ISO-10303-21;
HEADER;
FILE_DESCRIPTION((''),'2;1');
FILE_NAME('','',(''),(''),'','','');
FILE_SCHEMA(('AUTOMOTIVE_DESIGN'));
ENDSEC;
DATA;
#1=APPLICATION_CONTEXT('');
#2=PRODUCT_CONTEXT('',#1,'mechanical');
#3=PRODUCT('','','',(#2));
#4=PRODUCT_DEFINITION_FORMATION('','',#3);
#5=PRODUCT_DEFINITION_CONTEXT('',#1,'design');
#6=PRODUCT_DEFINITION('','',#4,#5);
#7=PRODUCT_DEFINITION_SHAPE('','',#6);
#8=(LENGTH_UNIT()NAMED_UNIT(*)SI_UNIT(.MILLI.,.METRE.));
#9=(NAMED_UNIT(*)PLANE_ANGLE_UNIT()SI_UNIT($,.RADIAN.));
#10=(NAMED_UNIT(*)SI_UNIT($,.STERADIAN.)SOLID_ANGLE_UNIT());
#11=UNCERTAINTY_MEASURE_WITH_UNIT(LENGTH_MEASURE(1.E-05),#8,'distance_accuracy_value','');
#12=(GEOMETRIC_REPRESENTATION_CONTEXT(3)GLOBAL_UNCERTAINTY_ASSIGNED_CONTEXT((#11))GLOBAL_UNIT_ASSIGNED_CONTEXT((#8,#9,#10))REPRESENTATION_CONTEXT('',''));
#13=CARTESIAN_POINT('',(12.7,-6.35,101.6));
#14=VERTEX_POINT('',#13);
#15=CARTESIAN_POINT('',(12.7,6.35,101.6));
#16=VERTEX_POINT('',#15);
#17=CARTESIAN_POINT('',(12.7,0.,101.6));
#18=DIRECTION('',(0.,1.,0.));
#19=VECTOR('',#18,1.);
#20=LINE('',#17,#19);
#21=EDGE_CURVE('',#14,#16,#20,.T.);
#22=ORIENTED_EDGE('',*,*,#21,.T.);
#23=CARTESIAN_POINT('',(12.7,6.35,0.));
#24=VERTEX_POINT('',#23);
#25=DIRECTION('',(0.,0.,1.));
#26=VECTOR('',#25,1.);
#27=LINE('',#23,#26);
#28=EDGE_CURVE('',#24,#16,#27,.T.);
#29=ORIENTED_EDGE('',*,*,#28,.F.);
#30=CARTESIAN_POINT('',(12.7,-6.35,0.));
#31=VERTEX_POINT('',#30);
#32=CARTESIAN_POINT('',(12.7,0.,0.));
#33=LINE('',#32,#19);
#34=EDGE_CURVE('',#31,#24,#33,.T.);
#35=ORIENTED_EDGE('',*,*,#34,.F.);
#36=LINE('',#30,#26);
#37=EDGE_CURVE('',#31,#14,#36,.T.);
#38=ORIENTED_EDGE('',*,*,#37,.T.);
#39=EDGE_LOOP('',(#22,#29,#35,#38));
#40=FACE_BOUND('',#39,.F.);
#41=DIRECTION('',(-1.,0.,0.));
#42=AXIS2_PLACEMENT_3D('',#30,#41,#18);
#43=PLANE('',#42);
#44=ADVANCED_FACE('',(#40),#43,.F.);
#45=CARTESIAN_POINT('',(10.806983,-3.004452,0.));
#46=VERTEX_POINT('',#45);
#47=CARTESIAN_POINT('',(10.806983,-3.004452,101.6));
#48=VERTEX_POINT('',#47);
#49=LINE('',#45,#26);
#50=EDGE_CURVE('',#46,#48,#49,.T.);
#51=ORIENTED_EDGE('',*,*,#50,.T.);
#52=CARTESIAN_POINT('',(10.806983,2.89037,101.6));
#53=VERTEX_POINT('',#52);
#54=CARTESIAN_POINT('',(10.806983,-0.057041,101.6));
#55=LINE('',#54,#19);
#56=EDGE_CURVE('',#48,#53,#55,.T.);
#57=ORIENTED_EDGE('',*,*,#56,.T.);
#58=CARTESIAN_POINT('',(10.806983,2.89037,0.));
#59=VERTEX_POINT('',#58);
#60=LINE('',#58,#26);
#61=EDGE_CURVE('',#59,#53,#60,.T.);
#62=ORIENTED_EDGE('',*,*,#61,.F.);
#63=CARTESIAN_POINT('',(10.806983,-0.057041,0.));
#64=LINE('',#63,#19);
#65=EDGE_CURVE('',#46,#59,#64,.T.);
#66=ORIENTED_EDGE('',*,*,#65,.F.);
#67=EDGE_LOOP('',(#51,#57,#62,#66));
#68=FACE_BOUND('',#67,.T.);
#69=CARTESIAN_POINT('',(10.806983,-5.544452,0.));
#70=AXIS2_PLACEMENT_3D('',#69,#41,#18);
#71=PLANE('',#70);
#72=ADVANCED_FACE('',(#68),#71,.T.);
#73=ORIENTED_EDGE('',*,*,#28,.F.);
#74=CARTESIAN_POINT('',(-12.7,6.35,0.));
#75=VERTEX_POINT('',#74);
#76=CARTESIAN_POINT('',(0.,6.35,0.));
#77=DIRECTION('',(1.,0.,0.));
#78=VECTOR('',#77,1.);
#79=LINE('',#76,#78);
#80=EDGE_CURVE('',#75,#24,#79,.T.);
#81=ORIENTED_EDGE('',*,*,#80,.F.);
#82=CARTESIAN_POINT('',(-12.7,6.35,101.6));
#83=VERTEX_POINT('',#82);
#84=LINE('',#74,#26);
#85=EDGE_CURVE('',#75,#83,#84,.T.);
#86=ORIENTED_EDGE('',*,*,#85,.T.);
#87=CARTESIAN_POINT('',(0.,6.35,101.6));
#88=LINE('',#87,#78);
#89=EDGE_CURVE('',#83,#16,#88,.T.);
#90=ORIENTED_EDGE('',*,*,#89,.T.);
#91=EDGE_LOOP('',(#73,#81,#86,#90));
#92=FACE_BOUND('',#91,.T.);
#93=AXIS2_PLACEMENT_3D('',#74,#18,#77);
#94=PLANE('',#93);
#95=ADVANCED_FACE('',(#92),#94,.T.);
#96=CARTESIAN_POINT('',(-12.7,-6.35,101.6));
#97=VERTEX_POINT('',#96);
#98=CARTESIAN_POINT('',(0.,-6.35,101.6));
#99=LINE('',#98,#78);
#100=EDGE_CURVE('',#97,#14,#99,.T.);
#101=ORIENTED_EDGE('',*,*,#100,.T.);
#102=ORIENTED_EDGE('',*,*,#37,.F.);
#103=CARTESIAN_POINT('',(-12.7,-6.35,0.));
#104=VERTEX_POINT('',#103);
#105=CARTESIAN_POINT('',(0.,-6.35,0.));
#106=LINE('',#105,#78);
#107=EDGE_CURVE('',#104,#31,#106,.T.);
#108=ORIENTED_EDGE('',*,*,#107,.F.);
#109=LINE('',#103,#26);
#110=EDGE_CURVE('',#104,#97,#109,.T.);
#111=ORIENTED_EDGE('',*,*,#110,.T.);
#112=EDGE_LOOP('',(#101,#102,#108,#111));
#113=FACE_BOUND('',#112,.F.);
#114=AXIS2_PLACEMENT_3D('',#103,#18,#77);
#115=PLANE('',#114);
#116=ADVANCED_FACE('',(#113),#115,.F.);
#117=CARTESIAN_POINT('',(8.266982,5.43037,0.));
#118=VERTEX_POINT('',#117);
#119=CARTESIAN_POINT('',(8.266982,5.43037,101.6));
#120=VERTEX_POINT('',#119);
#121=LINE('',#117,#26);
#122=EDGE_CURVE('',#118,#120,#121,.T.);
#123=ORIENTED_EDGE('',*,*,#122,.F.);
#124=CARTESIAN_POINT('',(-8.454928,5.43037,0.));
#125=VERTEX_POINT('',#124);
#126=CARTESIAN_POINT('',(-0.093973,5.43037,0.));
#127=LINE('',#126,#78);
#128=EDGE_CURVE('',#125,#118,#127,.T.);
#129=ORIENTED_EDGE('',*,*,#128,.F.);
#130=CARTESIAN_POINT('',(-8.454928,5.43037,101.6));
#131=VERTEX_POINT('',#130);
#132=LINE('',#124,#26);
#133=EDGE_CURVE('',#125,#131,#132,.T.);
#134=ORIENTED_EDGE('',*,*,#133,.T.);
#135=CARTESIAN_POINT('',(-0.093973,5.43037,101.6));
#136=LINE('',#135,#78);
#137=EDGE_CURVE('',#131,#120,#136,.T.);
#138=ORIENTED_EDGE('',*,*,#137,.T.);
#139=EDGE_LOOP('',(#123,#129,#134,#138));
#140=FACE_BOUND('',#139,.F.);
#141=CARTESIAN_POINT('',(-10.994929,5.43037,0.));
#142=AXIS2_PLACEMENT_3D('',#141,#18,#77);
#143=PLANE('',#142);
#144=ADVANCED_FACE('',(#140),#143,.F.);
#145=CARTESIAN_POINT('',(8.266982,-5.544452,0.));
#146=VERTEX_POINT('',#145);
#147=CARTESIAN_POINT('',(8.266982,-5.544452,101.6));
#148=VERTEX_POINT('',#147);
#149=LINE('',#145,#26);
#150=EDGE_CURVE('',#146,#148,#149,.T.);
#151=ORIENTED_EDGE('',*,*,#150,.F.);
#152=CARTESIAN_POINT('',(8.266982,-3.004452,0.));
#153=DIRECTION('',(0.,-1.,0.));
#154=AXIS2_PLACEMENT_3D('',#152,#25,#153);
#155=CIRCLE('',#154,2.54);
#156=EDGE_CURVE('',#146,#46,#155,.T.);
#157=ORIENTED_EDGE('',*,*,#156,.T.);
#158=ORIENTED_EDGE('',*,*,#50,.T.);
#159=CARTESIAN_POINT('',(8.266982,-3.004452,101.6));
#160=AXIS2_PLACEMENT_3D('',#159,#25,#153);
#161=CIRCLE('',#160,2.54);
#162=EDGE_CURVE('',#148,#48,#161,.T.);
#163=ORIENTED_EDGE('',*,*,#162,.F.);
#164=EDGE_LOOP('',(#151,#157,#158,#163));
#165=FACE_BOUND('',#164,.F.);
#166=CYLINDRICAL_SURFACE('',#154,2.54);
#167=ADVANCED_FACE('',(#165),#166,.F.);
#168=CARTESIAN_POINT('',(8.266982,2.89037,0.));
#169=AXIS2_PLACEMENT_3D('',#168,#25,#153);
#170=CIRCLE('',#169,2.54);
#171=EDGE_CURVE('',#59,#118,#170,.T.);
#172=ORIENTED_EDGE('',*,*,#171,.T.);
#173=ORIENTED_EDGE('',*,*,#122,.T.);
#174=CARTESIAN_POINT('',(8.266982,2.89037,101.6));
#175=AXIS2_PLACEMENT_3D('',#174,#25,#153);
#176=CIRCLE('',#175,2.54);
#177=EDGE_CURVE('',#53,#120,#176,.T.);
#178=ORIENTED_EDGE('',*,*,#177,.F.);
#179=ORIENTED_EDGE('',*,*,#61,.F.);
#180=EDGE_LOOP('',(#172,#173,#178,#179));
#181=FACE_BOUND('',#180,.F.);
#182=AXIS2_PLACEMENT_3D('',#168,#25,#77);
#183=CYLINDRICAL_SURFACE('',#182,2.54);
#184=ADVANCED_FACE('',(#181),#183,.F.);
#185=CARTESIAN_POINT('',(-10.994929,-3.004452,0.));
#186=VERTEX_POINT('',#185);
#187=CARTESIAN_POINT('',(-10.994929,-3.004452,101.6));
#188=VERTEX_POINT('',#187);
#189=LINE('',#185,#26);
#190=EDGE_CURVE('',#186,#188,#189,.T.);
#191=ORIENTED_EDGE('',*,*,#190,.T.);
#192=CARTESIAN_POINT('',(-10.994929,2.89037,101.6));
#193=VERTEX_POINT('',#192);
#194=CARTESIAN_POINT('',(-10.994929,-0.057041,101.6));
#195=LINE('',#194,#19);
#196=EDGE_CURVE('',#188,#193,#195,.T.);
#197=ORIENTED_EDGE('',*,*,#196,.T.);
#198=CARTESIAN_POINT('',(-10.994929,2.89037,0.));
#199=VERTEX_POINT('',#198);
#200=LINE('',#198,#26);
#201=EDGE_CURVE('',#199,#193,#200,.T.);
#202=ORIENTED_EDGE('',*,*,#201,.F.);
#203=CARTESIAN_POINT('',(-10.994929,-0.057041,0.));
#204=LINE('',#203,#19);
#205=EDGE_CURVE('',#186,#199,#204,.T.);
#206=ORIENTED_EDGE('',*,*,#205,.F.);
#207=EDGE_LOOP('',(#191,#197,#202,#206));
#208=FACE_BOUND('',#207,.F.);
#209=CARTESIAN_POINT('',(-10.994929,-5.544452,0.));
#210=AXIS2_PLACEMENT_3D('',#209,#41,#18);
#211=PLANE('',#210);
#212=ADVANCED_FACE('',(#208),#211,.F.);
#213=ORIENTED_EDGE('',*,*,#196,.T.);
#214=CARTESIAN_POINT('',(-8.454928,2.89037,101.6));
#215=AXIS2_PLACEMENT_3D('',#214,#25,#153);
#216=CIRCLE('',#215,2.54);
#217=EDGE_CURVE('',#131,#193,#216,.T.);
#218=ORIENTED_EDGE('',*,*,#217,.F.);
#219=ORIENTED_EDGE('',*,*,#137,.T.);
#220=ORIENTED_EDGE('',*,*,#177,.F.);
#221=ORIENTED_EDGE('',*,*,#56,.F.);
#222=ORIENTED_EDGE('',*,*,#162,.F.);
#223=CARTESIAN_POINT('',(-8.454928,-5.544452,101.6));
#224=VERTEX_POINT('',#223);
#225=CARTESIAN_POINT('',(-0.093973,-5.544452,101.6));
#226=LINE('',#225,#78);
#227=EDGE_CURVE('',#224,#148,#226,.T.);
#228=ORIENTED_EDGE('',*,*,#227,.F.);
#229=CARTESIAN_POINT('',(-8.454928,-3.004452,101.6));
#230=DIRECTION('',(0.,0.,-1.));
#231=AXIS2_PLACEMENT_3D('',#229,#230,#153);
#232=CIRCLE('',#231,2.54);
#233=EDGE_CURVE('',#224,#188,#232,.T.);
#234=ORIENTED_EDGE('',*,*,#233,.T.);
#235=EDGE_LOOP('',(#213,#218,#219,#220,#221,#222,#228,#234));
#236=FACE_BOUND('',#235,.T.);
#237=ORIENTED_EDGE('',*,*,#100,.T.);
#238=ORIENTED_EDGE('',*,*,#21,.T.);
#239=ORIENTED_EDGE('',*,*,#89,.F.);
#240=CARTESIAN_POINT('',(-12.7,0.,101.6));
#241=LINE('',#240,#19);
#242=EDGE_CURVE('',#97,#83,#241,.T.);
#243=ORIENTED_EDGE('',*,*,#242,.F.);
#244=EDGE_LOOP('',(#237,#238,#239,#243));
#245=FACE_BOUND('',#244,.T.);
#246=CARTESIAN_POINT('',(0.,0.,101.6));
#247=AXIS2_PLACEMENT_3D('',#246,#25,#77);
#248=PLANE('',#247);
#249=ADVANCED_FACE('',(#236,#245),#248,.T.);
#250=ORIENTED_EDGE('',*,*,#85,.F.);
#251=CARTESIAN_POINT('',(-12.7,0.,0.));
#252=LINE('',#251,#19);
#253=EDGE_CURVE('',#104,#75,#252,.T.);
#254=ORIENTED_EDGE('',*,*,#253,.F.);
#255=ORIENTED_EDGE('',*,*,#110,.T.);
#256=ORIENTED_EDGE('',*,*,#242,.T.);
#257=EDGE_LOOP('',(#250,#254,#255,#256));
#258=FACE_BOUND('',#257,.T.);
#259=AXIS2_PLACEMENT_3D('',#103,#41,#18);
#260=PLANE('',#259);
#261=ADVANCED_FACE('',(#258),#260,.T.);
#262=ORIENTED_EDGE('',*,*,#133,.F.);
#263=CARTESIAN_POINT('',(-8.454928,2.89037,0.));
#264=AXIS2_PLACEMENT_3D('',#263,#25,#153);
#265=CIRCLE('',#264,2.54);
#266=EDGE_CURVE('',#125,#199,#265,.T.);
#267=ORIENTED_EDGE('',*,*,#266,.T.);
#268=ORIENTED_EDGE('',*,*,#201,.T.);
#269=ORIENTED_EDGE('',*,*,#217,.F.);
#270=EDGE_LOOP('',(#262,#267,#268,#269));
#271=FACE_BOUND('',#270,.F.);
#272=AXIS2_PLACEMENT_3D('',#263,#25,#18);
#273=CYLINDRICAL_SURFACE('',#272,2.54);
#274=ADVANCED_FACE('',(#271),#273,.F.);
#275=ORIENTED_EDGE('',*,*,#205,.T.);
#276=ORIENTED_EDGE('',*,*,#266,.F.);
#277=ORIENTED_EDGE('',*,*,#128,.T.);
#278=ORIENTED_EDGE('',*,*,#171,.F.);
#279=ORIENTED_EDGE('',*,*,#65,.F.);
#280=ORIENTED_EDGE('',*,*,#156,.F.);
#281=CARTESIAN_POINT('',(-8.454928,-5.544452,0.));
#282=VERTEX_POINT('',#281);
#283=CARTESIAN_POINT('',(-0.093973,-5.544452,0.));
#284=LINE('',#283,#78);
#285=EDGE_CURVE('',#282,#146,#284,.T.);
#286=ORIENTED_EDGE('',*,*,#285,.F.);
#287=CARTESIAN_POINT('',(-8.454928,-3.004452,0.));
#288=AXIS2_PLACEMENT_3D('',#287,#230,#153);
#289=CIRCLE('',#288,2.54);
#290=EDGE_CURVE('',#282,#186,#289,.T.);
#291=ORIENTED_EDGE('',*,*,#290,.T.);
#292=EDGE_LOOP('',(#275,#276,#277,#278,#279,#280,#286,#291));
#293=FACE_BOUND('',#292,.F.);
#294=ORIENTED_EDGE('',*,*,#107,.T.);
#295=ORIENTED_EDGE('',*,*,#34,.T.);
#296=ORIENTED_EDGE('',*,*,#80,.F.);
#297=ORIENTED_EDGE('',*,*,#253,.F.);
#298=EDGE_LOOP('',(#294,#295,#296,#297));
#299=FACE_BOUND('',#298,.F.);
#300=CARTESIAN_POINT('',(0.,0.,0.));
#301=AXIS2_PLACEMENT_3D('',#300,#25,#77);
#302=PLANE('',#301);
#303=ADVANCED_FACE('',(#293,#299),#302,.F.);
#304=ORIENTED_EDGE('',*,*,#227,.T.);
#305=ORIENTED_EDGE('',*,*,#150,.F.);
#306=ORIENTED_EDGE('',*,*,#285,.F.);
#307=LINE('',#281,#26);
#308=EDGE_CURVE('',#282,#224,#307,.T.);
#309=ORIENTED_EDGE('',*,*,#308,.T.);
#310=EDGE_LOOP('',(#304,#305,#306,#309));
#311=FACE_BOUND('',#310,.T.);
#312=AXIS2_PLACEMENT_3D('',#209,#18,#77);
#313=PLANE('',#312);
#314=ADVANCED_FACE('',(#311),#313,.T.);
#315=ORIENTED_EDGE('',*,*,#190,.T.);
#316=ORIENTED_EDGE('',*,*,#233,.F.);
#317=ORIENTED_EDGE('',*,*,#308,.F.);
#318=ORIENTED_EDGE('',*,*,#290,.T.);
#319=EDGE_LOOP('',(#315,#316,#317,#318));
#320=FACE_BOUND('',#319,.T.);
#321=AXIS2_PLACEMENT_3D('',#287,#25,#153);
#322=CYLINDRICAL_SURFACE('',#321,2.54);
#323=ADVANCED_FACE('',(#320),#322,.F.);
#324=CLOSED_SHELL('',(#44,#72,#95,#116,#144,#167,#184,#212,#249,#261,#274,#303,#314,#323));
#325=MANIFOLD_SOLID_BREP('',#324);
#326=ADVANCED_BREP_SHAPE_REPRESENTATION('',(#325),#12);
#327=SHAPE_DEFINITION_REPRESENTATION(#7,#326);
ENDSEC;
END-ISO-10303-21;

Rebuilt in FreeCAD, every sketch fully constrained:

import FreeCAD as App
import Part
import Sketcher
from FreeCAD import Vector
Q = App.Units.Quantity


def edges_at(feature, points):
    """Names of the edges that pass closest to the given points."""
    edges = feature.Shape.Edges
    near = lambda p: min(range(len(edges)), key=lambda i: edges[i].distToShape(Part.Vertex(*p))[0])
    return sorted({f"Edge{near(p) + 1}" for p in points})

doc = App.newDocument("Part")
body = doc.addObject("PartDesign::Body", "Body")

sketch1 = body.newObject("Sketcher::SketchObject", "Sketch")
sketch1.AttachmentSupport = (doc.getObject("XY_Plane"), [""])
sketch1.MapMode = "FlatFace"
sketch1.addGeometry([
    Part.LineSegment(Vector(-12.7, 6.35, 0), Vector(-12.7, -6.35, 0)),
    Part.LineSegment(Vector(-12.7, -6.35, 0), Vector(12.7, -6.35, 0)),
    Part.LineSegment(Vector(12.7, -6.35, 0), Vector(12.7, 6.35, 0)),
    Part.LineSegment(Vector(12.7, 6.35, 0), Vector(-12.7, 6.35, 0)),
    Part.LineSegment(Vector(10.806983, -5.544452, 0), Vector(-10.994929, -5.544452, 0)),
    Part.LineSegment(Vector(-10.994929, -5.544452, 0), Vector(-10.994929, 5.43037, 0)),
    Part.LineSegment(Vector(-10.994929, 5.43037, 0), Vector(10.806983, 5.43037, 0)),
    Part.LineSegment(Vector(10.806983, 5.43037, 0), Vector(10.806983, -5.544452, 0)),
], False)
sketch1.addConstraint([
    Sketcher.Constraint("Coincident", 0, 2, 1, 1),
    Sketcher.Constraint("Coincident", 1, 2, 2, 1),
    Sketcher.Constraint("Coincident", 2, 2, 3, 1),
    Sketcher.Constraint("Coincident", 3, 2, 0, 1),
    Sketcher.Constraint("Coincident", 4, 2, 5, 1),
    Sketcher.Constraint("Coincident", 5, 2, 6, 1),
    Sketcher.Constraint("Coincident", 6, 2, 7, 1),
    Sketcher.Constraint("Coincident", 7, 2, 4, 1),
    Sketcher.Constraint("Vertical", 0),
    Sketcher.Constraint("Horizontal", 1),
    Sketcher.Constraint("Vertical", 2),
    Sketcher.Constraint("Horizontal", 3),
    Sketcher.Constraint("Horizontal", 4),
    Sketcher.Constraint("Vertical", 5),
    Sketcher.Constraint("Horizontal", 6),
    Sketcher.Constraint("Vertical", 7),
    Sketcher.Constraint("Symmetric", 0, 2, 2, 2, -1, 1),
    Sketcher.Constraint("DistanceX", 1, 1, 1, 2, Q("1 in")),
    Sketcher.Constraint("DistanceY", 0, 2, 0, 1, Q("0.5 in")),
    Sketcher.Constraint("DistanceX", 4, 2, 4, 1, Q("21.801911 mm")),
    Sketcher.Constraint("DistanceY", 5, 1, 5, 2, Q("10.974822 mm")),
    Sketcher.Constraint("DistanceX", 4, 2, -1, 1, Q("10.994929 mm")),
    Sketcher.Constraint("DistanceY", 4, 2, -1, 1, Q("5.544452 mm")),
])
pad1 = body.newObject("PartDesign::Pad", "Pad")
pad1.Profile = sketch1
pad1.Length = Q("4 in")
doc.recompute()

fillet = body.newObject("PartDesign::Fillet", "Fillet")
fillet.Base = (pad1, edges_at(pad1, [
    (-10.995, -5.544, 50.8),
    (10.807, -5.544, 50.8),
    (10.807, 5.43, 50.8),
    (-10.995, 5.43, 50.8),
]))
fillet.Radius = Q("0.1 in")

doc.recompute()
